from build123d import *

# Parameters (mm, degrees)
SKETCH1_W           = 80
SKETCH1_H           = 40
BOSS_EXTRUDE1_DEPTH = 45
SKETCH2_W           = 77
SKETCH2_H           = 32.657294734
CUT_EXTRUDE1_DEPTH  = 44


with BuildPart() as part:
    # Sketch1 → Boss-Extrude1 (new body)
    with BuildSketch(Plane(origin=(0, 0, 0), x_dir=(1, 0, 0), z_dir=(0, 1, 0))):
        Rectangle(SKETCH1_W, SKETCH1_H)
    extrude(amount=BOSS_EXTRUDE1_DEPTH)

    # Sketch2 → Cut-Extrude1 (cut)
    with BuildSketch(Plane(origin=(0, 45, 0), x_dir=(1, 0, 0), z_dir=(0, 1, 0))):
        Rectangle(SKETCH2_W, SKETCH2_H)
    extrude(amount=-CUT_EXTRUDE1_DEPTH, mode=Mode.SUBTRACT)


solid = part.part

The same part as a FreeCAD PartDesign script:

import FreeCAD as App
import Part
import Sketcher
from FreeCAD import Vector
Q = App.Units.Quantity


def add_polygon(sketch, points):
    """Adds a closed chain of lines whose ends are joined by coincident constraints."""
    first, n = sketch.GeometryCount, len(points)
    for a, b in zip(points, points[1:] + points[:1]):
        sketch.addGeometry(Part.LineSegment(App.Vector(*a, 0), App.Vector(*b, 0)), False)
    for i in range(n):
        sketch.addConstraint(Sketcher.Constraint("Coincident", first + i, 2, first + (i + 1) % n, 1))

doc = App.newDocument("Part")
body = doc.addObject("PartDesign::Body", "Body")

# Sketch on XZ plane
sketch1 = doc.addObject("Sketcher::SketchObject", "Sketch")
body.addObject(sketch1)
sketch1.AttachmentSupport = (doc.XZ_Plane, [""])
sketch1.MapMode = "FlatFace"
add_polygon(sketch1, [(-40, -20), (-40, 20), (40, 20), (40, -20)])  # lines 0-3
sketch1.addConstraint([
    Sketcher.Constraint("Vertical", 0),
    Sketcher.Constraint("Horizontal", 1),
    Sketcher.Constraint("Vertical", 2),
    Sketcher.Constraint("Horizontal", 3),
    Sketcher.Constraint("Symmetric", 0, 2, 2, 2, -1, 1),
    Sketcher.Constraint("DistanceX", 1, 1, 1, 2, Q("80 mm")),
    Sketcher.Constraint("DistanceY", 0, 1, 0, 2, Q("40 mm")),
])
pad1 = doc.addObject("PartDesign::Pad", "Pad")
body.addObject(pad1)
pad1.Profile = sketch1
pad1.Length = 45
pad1.Reversed = True

# Sketch on XZ plane
sketch2 = doc.addObject("Sketcher::SketchObject", "Sketch001")
body.addObject(sketch2)
sketch2.AttachmentSupport = (doc.XZ_Plane, [""])
sketch2.MapMode = "FlatFace"
sketch2.AttachmentOffset = App.Placement(Vector(0, 0, -45), App.Rotation())
add_polygon(sketch2, [(-38.5, -16.328647), (-38.5, 16.328647), (38.5, 16.328647), (38.5, -16.328647)])  # lines 0-3
sketch2.addConstraint([
    Sketcher.Constraint("Vertical", 0),
    Sketcher.Constraint("Horizontal", 1),
    Sketcher.Constraint("Vertical", 2),
    Sketcher.Constraint("Horizontal", 3),
    Sketcher.Constraint("Symmetric", 0, 2, 2, 2, -1, 1),
    Sketcher.Constraint("DistanceX", 1, 1, 1, 2, Q("77 mm")),
    Sketcher.Constraint("DistanceY", 0, 1, 0, 2, Q("32.657295 mm")),
])
pocket1 = doc.addObject("PartDesign::Pocket", "Pocket")
body.addObject(pocket1)
pocket1.Profile = sketch2
pocket1.Length = 44
pocket1.Reversed = True

doc.recompute()
